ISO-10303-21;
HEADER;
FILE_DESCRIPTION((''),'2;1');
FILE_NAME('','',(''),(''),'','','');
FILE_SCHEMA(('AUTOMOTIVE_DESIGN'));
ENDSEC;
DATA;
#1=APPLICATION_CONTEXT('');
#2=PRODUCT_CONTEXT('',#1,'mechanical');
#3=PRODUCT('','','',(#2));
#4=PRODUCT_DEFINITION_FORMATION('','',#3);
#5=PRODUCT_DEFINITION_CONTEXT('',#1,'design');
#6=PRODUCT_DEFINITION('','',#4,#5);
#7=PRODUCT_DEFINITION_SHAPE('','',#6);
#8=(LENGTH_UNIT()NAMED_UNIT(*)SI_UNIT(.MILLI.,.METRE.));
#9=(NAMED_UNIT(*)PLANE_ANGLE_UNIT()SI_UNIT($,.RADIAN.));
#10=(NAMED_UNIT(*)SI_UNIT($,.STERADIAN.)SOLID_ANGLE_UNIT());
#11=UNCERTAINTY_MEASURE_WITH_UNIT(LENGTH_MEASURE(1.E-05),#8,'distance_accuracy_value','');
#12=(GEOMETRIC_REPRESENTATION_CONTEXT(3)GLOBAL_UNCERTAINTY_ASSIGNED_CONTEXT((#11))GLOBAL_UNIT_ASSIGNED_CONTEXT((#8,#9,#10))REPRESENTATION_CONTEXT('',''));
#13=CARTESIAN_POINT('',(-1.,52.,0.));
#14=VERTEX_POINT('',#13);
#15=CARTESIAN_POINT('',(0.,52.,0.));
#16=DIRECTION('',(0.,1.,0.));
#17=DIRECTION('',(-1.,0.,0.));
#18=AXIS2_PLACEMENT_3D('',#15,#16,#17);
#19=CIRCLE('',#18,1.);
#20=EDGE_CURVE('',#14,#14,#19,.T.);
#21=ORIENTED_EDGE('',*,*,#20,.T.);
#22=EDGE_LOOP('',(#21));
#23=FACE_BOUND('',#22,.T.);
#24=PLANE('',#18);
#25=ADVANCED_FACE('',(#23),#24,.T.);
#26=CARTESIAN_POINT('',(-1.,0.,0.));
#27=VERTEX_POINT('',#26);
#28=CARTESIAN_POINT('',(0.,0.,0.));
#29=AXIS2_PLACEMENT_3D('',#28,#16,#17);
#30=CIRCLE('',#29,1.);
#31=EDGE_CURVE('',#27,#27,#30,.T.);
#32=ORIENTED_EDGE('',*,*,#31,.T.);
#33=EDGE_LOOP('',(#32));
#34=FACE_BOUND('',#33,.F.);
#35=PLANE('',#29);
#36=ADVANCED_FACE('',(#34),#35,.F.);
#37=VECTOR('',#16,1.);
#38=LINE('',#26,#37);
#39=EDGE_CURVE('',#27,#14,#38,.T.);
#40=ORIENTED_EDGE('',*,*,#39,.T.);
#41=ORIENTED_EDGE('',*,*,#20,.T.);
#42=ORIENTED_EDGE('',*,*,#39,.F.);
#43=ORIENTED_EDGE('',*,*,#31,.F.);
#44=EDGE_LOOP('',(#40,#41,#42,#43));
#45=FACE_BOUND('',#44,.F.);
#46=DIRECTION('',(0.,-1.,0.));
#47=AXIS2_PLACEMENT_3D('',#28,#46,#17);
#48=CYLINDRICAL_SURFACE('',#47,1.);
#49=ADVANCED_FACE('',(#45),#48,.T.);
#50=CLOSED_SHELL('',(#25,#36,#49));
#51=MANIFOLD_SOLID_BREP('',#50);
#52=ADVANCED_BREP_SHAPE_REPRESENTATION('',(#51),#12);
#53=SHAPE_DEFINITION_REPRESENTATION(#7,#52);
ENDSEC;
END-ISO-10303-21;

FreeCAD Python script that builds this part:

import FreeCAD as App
import Part
import Sketcher
from FreeCAD import Vector
Q = App.Units.Quantity

doc = App.newDocument("Part")
body = doc.addObject("PartDesign::Body", "Body")

sketch1 = body.newObject("Sketcher::SketchObject", "Sketch")
sketch1.AttachmentSupport = (doc.getObject("XZ_Plane"), [""])
sketch1.MapMode = "FlatFace"
sketch1.addGeometry(Part.Circle(Vector(0, 0, 0), Vector(0, 0, 1), 1), False)
sketch1.addConstraint([
    Sketcher.Constraint("Coincident", 0, 3, -1, 1),
    Sketcher.Constraint("Diameter", 0, Q("2 mm")),
])
pad1 = body.newObject("PartDesign::Pad", "Pad")
pad1.Profile = sketch1
pad1.Length = 52
pad1.Reversed = True

doc.recompute()
